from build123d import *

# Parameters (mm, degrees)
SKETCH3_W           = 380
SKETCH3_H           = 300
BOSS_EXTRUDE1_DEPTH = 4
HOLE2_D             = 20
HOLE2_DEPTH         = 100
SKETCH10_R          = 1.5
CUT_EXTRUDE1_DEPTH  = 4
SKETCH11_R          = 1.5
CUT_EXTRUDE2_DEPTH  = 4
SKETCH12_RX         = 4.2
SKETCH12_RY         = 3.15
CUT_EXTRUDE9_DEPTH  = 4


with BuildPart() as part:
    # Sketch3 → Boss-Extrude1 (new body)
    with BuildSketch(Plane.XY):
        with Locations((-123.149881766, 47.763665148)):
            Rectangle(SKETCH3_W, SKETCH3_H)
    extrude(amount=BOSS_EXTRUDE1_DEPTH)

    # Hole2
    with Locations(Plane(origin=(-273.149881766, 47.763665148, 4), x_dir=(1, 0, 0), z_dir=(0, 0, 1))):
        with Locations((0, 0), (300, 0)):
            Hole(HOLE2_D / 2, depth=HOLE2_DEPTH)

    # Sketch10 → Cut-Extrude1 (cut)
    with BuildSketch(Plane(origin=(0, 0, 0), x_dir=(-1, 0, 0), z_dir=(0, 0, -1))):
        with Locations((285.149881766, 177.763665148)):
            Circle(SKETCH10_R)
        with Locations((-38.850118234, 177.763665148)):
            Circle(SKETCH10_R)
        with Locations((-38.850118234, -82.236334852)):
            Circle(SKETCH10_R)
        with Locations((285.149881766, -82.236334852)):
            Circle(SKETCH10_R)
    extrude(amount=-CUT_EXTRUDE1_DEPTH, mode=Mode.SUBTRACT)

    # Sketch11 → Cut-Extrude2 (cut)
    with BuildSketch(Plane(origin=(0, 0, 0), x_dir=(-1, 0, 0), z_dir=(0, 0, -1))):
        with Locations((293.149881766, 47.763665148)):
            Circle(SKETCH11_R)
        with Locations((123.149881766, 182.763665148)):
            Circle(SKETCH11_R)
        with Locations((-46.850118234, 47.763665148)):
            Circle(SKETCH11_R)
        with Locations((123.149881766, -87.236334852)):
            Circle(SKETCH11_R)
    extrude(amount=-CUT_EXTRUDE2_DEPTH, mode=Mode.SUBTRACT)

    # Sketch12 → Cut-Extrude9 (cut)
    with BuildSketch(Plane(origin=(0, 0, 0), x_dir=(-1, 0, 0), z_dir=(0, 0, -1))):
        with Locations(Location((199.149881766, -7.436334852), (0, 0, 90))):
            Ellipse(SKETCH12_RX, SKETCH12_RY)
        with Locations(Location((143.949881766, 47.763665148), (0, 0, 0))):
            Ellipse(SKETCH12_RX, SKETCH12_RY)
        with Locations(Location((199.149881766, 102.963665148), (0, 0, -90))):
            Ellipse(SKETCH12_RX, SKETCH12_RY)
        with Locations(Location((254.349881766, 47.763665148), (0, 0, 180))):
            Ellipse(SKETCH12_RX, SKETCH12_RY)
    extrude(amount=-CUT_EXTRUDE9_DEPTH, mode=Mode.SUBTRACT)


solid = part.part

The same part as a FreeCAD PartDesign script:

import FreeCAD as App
import Part
import Sketcher
Q = App.Units.Quantity

doc = App.newDocument("Part")
body = doc.addObject("PartDesign::Body", "Body")

sketch1 = body.newObject("Sketcher::SketchObject", "Sketch")
sketch1.AttachmentSupport = (doc.getObject("XY_Plane"), [""])
sketch1.MapMode = "FlatFace"
sketch1.addGeometry(Part.LineSegment(App.Vector(-313, 198, 0), App.Vector(-313, -102, 0)), False)
sketch1.addGeometry(Part.LineSegment(App.Vector(-313, -102, 0), App.Vector(67, -102, 0)), False)
sketch1.addGeometry(Part.LineSegment(App.Vector(67, -102, 0), App.Vector(67, 198, 0)), False)
sketch1.addGeometry(Part.LineSegment(App.Vector(67, 198, 0), App.Vector(-313, 198, 0)), False)
sketch1.addConstraint(Sketcher.Constraint("Coincident", 0, 2, 1, 1))
sketch1.addConstraint(Sketcher.Constraint("Coincident", 1, 2, 2, 1))
sketch1.addConstraint(Sketcher.Constraint("Coincident", 2, 2, 3, 1))
sketch1.addConstraint(Sketcher.Constraint("Coincident", 3, 2, 0, 1))
sketch1.addConstraint(Sketcher.Constraint("Vertical", 0))
sketch1.addConstraint(Sketcher.Constraint("Horizontal", 1))
sketch1.addConstraint(Sketcher.Constraint("Vertical", 2))
sketch1.addConstraint(Sketcher.Constraint("Horizontal", 3))
sketch1.addConstraint(Sketcher.Constraint("DistanceX", 1, 1, 1, 2, Q("380 mm")))
sketch1.addConstraint(Sketcher.Constraint("DistanceY", 0, 2, 0, 1, Q("300 mm")))
sketch1.addConstraint(Sketcher.Constraint("DistanceX", 0, 2, -1, 1, Q("313.149882 mm")))
sketch1.addConstraint(Sketcher.Constraint("DistanceY", 0, 2, -1, 1, Q("102.236335 mm")))
pad1 = body.newObject("PartDesign::Pad", "Pad")
pad1.Profile = sketch1
pad1.Length = 4

sketch2 = body.newObject("Sketcher::SketchObject", "Sketch001")
sketch2.AttachmentSupport = (doc.getObject("XY_Plane"), [""])
sketch2.MapMode = "FlatFace"
sketch2.AttachmentOffset = App.Placement(App.Vector(0, 0, 4), App.Rotation())
sketch2.addGeometry(Part.Circle(App.Vector(-273, 48, 0), App.Vector(0, 0, 1), 10), False)
sketch2.addGeometry(Part.Circle(App.Vector(27, 48, 0), App.Vector(0, 0, 1), 10), False)
sketch2.addConstraint(Sketcher.Constraint("Equal", 0, 1))
sketch2.addConstraint(Sketcher.Constraint("Horizontal", 0, 3, 1, 3))
sketch2.addConstraint(Sketcher.Constraint("Diameter", 0, Q("20 mm")))
sketch2.addConstraint(Sketcher.Constraint("DistanceX", 0, 3, 1, 3, Q("300 mm")))
sketch2.addConstraint(Sketcher.Constraint("DistanceX", 0, 3, -1, 1, Q("273.149882 mm")))
sketch2.addConstraint(Sketcher.Constraint("DistanceY", -1, 1, 0, 3, Q("47.763665 mm")))
doc.recompute()
hole = body.newObject("PartDesign::Hole", "Hole")
hole.Profile = sketch2
hole.ThreadType = "None"
hole.Diameter = 20
hole.DepthType = "Dimension"
hole.Depth = 100
hole.DrillPoint = "Flat"

sketch3 = body.newObject("Sketcher::SketchObject", "Sketch002")
sketch3.AttachmentSupport = (doc.getObject("XY_Plane"), [""])
sketch3.MapMode = "FlatFace"
sketch3.addGeometry(Part.Circle(App.Vector(-285.1, 177.8, 0), App.Vector(0, 0, 1), 1.5), False)
sketch3.addGeometry(Part.Circle(App.Vector(38.9, 177.8, 0), App.Vector(0, 0, 1), 1.5), False)
sketch3.addGeometry(Part.Circle(App.Vector(38.9, -82.2, 0), App.Vector(0, 0, 1), 1.5), False)
sketch3.addGeometry(Part.Circle(App.Vector(-285.1, -82.2, 0), App.Vector(0, 0, 1), 1.5), False)
sketch3.addConstraint(Sketcher.Constraint("Equal", 0, 1))
sketch3.addConstraint(Sketcher.Constraint("Equal", 1, 2))
sketch3.addConstraint(Sketcher.Constraint("Equal", 2, 3))
sketch3.addConstraint(Sketcher.Constraint("Horizontal", 0, 3, 1, 3))
sketch3.addConstraint(Sketcher.Constraint("Horizontal", 2, 3, 3, 3))
sketch3.addConstraint(Sketcher.Constraint("Vertical", 1, 3, 2, 3))
sketch3.addConstraint(Sketcher.Constraint("Vertical", 0, 3, 3, 3))
sketch3.addConstraint(Sketcher.Constraint("Diameter", 0, Q("3 mm")))
sketch3.addConstraint(Sketcher.Constraint("DistanceX", 0, 3, 1, 3, Q("324 mm")))
sketch3.addConstraint(Sketcher.Constraint("DistanceY", 2, 3, 1, 3, Q("260 mm")))
sketch3.addConstraint(Sketcher.Constraint("DistanceX", 0, 3, -1, 1, Q("285.149882 mm")))
sketch3.addConstraint(Sketcher.Constraint("DistanceY", -1, 1, 0, 3, Q("177.763665 mm")))
pocket1 = body.newObject("PartDesign::Pocket", "Pocket")
pocket1.Profile = sketch3
pocket1.Length = 4
pocket1.Reversed = True

sketch4 = body.newObject("Sketcher::SketchObject", "Sketch003")
sketch4.AttachmentSupport = (doc.getObject("XY_Plane"), [""])
sketch4.MapMode = "FlatFace"
sketch4.addGeometry(Part.Circle(App.Vector(-293.1, 47.8, 0), App.Vector(0, 0, 1), 1.5), False)
sketch4.addGeometry(Part.Circle(App.Vector(-123.1, 182.8, 0), App.Vector(0, 0, 1), 1.5), False)
sketch4.addGeometry(Part.Circle(App.Vector(46.9, 47.8, 0), App.Vector(0, 0, 1), 1.5), False)
sketch4.addGeometry(Part.Circle(App.Vector(-123.1, -87.2, 0), App.Vector(0, 0, 1), 1.5), False)
sketch4.addConstraint(Sketcher.Constraint("Equal", 0, 1))
sketch4.addConstraint(Sketcher.Constraint("Equal", 1, 2))
sketch4.addConstraint(Sketcher.Constraint("Equal", 2, 3))
sketch4.addConstraint(Sketcher.Constraint("Horizontal", 0, 3, 2, 3))
sketch4.addConstraint(Sketcher.Constraint("Vertical", 1, 3, 3, 3))
sketch4.addConstraint(Sketcher.Constraint("Diameter", 0, Q("3 mm")))
sketch4.addConstraint(Sketcher.Constraint("DistanceX", 0, 3, 1, 3, Q("170 mm")))
sketch4.addConstraint(Sketcher.Constraint("DistanceY", 0, 3, 1, 3, Q("135 mm")))
sketch4.addConstraint(Sketcher.Constraint("DistanceX", 1, 3, 2, 3, Q("170 mm")))
sketch4.addConstraint(Sketcher.Constraint("DistanceY", 3, 3, 2, 3, Q("135 mm")))
sketch4.addConstraint(Sketcher.Constraint("DistanceX", 0, 3, -1, 1, Q("293.149882 mm")))
sketch4.addConstraint(Sketcher.Constraint("DistanceY", -1, 1, 0, 3, Q("47.763665 mm")))
pocket2 = body.newObject("PartDesign::Pocket", "Pocket001")
pocket2.Profile = sketch4
pocket2.Length = 4
pocket2.Reversed = True

sketch5 = body.newObject("Sketcher::SketchObject", "Sketch004")
sketch5.AttachmentSupport = (doc.getObject("XY_Plane"), [""])
sketch5.MapMode = "FlatFace"
sketch5.addGeometry(Part.Ellipse(App.Vector(-199.149882, -3.236335, 0), App.Vector(-202.299882, -7.436335, 0), App.Vector(-199.149882, -7.436335, 0)), False)
sketch5.addGeometry(Part.Ellipse(App.Vector(-148.149882, 47.763665, 0), App.Vector(-143.949882, 44.613665, 0), App.Vector(-143.949882, 47.763665, 0)), False)
sketch5.addGeometry(Part.Ellipse(App.Vector(-199.149882, 98.763665, 0), App.Vector(-195.999882, 102.963665, 0), App.Vector(-199.149882, 102.963665, 0)), False)
sketch5.addGeometry(Part.Ellipse(App.Vector(-250.149882, 47.763665, 0), App.Vector(-254.349882, 50.913665, 0), App.Vector(-254.349882, 47.763665, 0)), False)
sketch5.addConstraint(Sketcher.Constraint("Block", 0))
sketch5.addConstraint(Sketcher.Constraint("Block", 1))
sketch5.addConstraint(Sketcher.Constraint("Block", 2))
sketch5.addConstraint(Sketcher.Constraint("Block", 3))
pocket3 = body.newObject("PartDesign::Pocket", "Pocket002")
pocket3.Profile = sketch5
pocket3.Length = 4
pocket3.Reversed = True

doc.recompute()
